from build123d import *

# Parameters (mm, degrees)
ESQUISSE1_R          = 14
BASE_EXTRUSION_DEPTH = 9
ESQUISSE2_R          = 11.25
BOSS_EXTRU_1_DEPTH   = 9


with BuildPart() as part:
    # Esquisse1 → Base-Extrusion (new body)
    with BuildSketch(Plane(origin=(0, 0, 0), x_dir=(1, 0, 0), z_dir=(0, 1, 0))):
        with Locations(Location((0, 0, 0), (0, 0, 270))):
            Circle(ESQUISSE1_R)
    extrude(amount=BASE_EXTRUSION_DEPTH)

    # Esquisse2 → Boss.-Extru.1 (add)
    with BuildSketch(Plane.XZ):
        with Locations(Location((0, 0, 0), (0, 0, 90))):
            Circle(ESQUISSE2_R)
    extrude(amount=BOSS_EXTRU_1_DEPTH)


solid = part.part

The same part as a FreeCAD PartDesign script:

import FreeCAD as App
import Part
import Sketcher
from FreeCAD import Vector
Q = App.Units.Quantity

doc = App.newDocument("Part")
body = doc.addObject("PartDesign::Body", "Body")

sketch1 = body.newObject("Sketcher::SketchObject", "Sketch")
sketch1.AttachmentSupport = (doc.getObject("XZ_Plane"), [""])
sketch1.MapMode = "FlatFace"
sketch1.addGeometry(Part.Circle(Vector(0, 0, 0), Vector(0, 0, 1), 14), False)
sketch1.addConstraint([
    Sketcher.Constraint("Coincident", 0, 3, -1, 1),
    Sketcher.Constraint("Diameter", 0, Q("28 mm")),
])
pad1 = body.newObject("PartDesign::Pad", "Pad")
pad1.Profile = sketch1
pad1.Length = 9
pad1.Reversed = True

sketch2 = body.newObject("Sketcher::SketchObject", "Sketch001")
sketch2.AttachmentSupport = (doc.getObject("XZ_Plane"), [""])
sketch2.MapMode = "FlatFace"
sketch2.addGeometry(Part.Circle(Vector(0, 0, 0), Vector(0, 0, 1), 11.25), False)
sketch2.addConstraint([
    Sketcher.Constraint("Coincident", 0, 3, -1, 1),
    Sketcher.Constraint("Diameter", 0, Q("22.5 mm")),
])
pad2 = body.newObject("PartDesign::Pad", "Pad001")
pad2.Profile = sketch2
pad2.Length = 9

doc.recompute()
